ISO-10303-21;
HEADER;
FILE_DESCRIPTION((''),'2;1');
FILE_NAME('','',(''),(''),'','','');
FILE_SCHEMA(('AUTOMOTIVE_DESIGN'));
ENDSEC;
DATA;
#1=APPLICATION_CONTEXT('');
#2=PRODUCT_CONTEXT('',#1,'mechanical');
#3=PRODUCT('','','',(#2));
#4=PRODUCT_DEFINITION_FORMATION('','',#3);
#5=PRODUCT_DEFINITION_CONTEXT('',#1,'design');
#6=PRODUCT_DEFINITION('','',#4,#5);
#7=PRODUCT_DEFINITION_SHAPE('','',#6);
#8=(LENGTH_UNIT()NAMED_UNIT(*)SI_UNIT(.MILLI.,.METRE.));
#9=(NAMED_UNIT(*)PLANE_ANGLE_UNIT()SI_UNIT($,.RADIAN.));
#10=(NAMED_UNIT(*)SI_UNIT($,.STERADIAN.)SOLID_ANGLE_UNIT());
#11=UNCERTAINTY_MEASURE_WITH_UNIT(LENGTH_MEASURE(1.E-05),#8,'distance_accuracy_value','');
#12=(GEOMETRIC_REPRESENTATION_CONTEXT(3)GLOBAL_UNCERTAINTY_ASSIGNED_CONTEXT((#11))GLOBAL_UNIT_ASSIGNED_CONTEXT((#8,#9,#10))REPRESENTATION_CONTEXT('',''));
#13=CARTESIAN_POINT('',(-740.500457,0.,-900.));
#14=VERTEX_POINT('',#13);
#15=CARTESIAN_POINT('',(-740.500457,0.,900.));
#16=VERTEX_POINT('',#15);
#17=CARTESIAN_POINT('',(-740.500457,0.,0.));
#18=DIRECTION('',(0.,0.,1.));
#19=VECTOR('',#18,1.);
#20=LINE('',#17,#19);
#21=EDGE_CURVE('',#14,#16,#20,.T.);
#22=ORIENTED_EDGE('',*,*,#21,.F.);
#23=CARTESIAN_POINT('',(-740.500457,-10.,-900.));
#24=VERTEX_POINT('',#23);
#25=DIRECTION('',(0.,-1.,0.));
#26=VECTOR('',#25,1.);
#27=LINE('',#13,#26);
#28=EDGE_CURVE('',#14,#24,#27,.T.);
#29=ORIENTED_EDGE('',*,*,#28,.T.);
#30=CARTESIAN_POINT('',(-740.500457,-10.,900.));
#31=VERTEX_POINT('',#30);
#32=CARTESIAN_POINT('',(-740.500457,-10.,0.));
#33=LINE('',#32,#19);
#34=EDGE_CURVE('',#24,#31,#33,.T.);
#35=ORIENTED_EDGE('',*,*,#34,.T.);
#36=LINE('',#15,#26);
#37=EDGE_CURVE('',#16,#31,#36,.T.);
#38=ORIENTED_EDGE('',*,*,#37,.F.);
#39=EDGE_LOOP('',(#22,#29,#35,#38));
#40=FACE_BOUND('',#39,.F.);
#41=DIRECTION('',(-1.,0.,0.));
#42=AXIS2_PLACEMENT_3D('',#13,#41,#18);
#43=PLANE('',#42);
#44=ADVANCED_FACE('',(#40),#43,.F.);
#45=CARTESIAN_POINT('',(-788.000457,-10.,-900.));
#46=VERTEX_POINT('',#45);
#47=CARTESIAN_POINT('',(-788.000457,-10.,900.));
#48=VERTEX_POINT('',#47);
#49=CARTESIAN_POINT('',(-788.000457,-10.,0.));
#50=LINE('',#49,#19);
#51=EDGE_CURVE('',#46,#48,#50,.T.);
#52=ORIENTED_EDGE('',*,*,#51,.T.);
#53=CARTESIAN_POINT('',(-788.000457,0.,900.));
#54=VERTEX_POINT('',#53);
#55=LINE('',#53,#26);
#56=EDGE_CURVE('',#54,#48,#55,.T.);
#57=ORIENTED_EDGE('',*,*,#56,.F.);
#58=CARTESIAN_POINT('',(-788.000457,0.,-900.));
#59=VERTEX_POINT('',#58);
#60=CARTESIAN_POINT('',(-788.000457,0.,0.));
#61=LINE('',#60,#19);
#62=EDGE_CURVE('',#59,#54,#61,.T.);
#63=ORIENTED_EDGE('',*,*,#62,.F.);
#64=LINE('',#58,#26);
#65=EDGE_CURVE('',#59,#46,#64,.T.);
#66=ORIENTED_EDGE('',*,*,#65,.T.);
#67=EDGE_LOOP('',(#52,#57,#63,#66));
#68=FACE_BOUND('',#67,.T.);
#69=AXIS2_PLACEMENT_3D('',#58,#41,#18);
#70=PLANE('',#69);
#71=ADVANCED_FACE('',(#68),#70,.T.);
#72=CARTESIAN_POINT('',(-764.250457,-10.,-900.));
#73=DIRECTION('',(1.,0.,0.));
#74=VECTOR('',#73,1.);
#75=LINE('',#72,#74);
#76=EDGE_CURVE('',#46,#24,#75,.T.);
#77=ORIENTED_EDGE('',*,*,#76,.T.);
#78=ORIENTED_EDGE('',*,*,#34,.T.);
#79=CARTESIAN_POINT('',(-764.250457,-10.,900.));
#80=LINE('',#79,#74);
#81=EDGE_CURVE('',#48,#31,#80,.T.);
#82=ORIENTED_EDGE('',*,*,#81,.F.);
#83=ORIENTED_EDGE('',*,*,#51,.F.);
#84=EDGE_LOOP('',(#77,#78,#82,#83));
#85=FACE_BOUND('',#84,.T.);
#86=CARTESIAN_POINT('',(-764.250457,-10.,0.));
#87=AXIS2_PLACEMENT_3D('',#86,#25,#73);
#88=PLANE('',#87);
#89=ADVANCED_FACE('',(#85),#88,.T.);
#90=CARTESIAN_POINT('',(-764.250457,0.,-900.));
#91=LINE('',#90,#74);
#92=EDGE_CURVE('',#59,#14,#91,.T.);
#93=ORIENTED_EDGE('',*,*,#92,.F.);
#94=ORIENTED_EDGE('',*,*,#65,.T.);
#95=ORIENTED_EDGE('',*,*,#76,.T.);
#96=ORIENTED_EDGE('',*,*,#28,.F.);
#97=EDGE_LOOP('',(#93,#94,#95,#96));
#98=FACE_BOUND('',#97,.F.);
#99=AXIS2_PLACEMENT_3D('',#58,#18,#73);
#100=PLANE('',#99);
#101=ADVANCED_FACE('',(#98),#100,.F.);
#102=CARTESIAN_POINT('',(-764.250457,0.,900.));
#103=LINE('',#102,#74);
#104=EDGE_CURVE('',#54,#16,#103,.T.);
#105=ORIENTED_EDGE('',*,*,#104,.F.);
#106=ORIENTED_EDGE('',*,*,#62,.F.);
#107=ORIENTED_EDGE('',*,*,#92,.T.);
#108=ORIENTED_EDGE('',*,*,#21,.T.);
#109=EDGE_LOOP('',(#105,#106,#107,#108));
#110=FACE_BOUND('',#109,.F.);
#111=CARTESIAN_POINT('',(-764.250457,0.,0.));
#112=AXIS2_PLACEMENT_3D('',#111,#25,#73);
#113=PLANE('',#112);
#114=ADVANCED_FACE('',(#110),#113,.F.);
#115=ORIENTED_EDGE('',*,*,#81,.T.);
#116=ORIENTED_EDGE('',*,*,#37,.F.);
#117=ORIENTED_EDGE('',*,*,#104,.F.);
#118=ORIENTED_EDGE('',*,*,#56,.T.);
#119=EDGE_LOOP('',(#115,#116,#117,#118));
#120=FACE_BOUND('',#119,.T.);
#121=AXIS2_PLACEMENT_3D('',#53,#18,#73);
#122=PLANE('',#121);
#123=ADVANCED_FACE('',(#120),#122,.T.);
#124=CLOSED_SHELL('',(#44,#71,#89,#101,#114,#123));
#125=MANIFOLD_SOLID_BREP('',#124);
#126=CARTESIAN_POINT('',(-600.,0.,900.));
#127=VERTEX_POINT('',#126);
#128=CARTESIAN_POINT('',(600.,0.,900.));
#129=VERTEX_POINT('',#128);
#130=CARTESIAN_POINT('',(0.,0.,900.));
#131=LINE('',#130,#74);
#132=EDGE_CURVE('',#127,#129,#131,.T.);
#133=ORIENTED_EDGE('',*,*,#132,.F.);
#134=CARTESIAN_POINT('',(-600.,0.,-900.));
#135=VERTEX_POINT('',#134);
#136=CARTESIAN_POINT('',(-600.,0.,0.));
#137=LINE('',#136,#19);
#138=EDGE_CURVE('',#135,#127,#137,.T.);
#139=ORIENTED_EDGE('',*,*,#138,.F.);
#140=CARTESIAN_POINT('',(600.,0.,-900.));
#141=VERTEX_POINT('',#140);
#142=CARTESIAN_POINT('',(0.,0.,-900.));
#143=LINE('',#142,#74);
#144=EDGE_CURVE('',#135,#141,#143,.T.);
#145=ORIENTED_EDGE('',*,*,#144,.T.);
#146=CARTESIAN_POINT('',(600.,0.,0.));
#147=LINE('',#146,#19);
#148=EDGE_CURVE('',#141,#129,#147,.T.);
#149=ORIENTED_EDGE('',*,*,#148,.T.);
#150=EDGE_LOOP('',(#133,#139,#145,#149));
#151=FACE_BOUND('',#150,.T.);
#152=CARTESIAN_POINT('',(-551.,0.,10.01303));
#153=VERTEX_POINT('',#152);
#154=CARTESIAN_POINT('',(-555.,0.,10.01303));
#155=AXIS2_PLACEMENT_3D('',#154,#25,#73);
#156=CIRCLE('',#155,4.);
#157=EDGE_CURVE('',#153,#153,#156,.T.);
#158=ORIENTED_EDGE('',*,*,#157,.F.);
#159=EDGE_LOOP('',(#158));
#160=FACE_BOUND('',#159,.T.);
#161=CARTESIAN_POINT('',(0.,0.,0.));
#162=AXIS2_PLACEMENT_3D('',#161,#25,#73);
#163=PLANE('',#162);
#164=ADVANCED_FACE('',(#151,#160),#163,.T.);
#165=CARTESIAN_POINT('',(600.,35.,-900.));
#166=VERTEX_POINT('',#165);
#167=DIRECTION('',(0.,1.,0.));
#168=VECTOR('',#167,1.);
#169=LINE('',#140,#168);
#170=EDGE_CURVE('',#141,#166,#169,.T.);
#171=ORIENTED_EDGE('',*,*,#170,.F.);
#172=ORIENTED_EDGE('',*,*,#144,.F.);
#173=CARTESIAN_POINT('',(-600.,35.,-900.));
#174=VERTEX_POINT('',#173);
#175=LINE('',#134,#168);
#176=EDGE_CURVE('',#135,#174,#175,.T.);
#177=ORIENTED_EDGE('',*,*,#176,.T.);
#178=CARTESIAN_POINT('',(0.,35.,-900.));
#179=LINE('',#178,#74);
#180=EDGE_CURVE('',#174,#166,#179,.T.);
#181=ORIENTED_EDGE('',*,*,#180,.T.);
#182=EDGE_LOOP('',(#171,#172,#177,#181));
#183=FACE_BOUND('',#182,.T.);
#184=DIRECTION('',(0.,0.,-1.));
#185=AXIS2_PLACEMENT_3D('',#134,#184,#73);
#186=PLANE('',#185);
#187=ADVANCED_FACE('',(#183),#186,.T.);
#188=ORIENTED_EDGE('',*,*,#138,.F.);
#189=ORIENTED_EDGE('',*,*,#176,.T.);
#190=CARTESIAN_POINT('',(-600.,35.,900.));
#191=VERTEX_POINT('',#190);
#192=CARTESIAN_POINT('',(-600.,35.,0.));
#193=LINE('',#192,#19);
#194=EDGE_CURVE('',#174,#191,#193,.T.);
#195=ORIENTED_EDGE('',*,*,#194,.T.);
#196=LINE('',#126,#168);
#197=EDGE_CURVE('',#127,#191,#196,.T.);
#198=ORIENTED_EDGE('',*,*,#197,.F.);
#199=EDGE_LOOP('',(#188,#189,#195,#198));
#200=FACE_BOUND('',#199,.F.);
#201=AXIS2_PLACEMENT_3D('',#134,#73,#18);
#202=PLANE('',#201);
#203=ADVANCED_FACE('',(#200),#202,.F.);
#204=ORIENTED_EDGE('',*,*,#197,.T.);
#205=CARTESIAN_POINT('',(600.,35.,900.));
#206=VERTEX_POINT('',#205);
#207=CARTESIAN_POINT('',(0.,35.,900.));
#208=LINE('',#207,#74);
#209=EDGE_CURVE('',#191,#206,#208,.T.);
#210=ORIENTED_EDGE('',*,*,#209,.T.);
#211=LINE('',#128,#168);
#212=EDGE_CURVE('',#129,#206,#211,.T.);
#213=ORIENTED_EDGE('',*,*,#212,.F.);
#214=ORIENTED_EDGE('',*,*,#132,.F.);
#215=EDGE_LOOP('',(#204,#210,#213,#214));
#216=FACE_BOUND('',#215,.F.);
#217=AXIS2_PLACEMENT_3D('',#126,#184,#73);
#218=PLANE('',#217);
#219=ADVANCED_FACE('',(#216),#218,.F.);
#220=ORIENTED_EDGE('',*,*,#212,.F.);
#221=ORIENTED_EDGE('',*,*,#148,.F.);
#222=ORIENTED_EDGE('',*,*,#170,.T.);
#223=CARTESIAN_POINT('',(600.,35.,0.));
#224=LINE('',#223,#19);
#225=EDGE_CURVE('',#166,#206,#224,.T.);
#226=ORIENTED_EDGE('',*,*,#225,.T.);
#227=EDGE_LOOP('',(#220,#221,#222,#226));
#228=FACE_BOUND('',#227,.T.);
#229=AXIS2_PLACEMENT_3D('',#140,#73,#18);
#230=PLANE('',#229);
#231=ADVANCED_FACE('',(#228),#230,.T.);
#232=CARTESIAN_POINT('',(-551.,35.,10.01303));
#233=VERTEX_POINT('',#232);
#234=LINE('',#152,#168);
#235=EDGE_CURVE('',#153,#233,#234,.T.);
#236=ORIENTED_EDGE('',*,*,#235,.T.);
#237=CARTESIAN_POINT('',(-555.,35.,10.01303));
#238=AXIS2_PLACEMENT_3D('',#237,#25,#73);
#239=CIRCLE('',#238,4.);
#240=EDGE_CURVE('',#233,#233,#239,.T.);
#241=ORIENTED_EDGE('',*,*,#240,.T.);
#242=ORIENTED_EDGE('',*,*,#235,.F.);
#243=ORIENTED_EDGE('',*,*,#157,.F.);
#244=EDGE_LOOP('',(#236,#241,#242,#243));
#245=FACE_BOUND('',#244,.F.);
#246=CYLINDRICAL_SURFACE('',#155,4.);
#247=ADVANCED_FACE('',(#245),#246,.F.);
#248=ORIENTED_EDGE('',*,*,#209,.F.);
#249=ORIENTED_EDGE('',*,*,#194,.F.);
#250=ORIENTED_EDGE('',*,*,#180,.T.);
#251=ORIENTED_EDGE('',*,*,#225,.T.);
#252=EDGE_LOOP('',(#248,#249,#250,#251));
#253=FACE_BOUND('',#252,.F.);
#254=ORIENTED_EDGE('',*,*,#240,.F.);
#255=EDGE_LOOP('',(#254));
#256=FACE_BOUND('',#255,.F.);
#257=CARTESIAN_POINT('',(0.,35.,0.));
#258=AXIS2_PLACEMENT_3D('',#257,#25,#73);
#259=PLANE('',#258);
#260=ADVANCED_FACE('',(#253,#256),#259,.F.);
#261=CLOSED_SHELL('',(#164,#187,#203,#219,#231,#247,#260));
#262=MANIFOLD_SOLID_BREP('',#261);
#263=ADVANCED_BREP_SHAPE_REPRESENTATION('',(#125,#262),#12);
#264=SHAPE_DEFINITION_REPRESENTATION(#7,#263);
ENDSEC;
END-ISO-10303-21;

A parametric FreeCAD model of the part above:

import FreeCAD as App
import Part
import Sketcher

V = App.Vector


def add_polygon(sketch, points):
    """Adds a closed chain of lines whose ends are joined by coincident constraints."""
    first, n = sketch.GeometryCount, len(points)
    for a, b in zip(points, points[1:] + points[:1]):
        sketch.addGeometry(Part.LineSegment(App.Vector(*a, 0), App.Vector(*b, 0)), False)
    for i in range(n):
        sketch.addConstraint(Sketcher.Constraint("Coincident", first + i, 2, first + (i + 1) % n, 1))

doc = App.newDocument("Part")
body = doc.addObject("PartDesign::Body", "Body")

sketch1 = body.newObject("Sketcher::SketchObject", "Sketch")
sketch1.AttachmentSupport = (doc.getObject("XZ_Plane"), [""])
sketch1.MapMode = "FlatFace"
add_polygon(sketch1, [(-600, 900), (-600, -900), (600, -900), (600, 900)])
sketch1.addConstraint([
    Sketcher.Constraint("Vertical", 0),
    Sketcher.Constraint("Horizontal", 1),
    Sketcher.Constraint("Vertical", 2),
    Sketcher.Constraint("Horizontal", 3),
    Sketcher.Constraint("Symmetric", 0, 2, 2, 2, -1, 1),
    Sketcher.Constraint("DistanceX", 1, 1, 1, 2, 1200.0),
    Sketcher.Constraint("DistanceY", 0, 2, 0, 1, 1800.0),
])
pad1 = body.newObject("PartDesign::Pad", "Pad")
pad1.Profile = sketch1
pad1.Length = 35
pad1.Reversed = True

sketch2 = body.newObject("Sketcher::SketchObject", "Sketch001")
sketch2.AttachmentSupport = (doc.getObject("XZ_Plane"), [""])
sketch2.MapMode = "FlatFace"
sketch2.addGeometry(Part.Circle(V(-555, 10, 0), V(0, 0, 1), 4), False)
sketch2.addConstraint([
    Sketcher.Constraint("Diameter", 0, 8.0),
    Sketcher.Constraint("DistanceX", 0, 3, -1, 1, 555.0),
    Sketcher.Constraint("DistanceY", -1, 1, 0, 3, 10.01303),
])
pocket1 = body.newObject("PartDesign::Pocket", "Pocket")
pocket1.Profile = sketch2
pocket1.Type = "ThroughAll"
body2 = doc.addObject("PartDesign::Body", "Body001")

sketch3 = body2.newObject("Sketcher::SketchObject", "Sketch002")
sketch3.AttachmentSupport = (doc.getObject("XZ_Plane001"), [""])
sketch3.MapMode = "FlatFace"
add_polygon(sketch3, [(-788, 900), (-788, -900), (-741, -900), (-741, 900)])
sketch3.addConstraint([
    Sketcher.Constraint("Vertical", 0),
    Sketcher.Constraint("Horizontal", 1),
    Sketcher.Constraint("Vertical", 2),
    Sketcher.Constraint("Horizontal", 3),
    Sketcher.Constraint("DistanceY", 0, 2, 0, 1, 1800.0),
    Sketcher.Constraint("DistanceX", 1, 1, 1, 2, 47.5),
    Sketcher.Constraint("DistanceY", 0, 2, -1, 1, 900.0),
    Sketcher.Constraint("DistanceX", 0, 2, -1, 1, 788.000457),
])
pad2 = body2.newObject("PartDesign::Pad", "Pad001")
pad2.Profile = sketch3
pad2.Length = 10

doc.recompute()
